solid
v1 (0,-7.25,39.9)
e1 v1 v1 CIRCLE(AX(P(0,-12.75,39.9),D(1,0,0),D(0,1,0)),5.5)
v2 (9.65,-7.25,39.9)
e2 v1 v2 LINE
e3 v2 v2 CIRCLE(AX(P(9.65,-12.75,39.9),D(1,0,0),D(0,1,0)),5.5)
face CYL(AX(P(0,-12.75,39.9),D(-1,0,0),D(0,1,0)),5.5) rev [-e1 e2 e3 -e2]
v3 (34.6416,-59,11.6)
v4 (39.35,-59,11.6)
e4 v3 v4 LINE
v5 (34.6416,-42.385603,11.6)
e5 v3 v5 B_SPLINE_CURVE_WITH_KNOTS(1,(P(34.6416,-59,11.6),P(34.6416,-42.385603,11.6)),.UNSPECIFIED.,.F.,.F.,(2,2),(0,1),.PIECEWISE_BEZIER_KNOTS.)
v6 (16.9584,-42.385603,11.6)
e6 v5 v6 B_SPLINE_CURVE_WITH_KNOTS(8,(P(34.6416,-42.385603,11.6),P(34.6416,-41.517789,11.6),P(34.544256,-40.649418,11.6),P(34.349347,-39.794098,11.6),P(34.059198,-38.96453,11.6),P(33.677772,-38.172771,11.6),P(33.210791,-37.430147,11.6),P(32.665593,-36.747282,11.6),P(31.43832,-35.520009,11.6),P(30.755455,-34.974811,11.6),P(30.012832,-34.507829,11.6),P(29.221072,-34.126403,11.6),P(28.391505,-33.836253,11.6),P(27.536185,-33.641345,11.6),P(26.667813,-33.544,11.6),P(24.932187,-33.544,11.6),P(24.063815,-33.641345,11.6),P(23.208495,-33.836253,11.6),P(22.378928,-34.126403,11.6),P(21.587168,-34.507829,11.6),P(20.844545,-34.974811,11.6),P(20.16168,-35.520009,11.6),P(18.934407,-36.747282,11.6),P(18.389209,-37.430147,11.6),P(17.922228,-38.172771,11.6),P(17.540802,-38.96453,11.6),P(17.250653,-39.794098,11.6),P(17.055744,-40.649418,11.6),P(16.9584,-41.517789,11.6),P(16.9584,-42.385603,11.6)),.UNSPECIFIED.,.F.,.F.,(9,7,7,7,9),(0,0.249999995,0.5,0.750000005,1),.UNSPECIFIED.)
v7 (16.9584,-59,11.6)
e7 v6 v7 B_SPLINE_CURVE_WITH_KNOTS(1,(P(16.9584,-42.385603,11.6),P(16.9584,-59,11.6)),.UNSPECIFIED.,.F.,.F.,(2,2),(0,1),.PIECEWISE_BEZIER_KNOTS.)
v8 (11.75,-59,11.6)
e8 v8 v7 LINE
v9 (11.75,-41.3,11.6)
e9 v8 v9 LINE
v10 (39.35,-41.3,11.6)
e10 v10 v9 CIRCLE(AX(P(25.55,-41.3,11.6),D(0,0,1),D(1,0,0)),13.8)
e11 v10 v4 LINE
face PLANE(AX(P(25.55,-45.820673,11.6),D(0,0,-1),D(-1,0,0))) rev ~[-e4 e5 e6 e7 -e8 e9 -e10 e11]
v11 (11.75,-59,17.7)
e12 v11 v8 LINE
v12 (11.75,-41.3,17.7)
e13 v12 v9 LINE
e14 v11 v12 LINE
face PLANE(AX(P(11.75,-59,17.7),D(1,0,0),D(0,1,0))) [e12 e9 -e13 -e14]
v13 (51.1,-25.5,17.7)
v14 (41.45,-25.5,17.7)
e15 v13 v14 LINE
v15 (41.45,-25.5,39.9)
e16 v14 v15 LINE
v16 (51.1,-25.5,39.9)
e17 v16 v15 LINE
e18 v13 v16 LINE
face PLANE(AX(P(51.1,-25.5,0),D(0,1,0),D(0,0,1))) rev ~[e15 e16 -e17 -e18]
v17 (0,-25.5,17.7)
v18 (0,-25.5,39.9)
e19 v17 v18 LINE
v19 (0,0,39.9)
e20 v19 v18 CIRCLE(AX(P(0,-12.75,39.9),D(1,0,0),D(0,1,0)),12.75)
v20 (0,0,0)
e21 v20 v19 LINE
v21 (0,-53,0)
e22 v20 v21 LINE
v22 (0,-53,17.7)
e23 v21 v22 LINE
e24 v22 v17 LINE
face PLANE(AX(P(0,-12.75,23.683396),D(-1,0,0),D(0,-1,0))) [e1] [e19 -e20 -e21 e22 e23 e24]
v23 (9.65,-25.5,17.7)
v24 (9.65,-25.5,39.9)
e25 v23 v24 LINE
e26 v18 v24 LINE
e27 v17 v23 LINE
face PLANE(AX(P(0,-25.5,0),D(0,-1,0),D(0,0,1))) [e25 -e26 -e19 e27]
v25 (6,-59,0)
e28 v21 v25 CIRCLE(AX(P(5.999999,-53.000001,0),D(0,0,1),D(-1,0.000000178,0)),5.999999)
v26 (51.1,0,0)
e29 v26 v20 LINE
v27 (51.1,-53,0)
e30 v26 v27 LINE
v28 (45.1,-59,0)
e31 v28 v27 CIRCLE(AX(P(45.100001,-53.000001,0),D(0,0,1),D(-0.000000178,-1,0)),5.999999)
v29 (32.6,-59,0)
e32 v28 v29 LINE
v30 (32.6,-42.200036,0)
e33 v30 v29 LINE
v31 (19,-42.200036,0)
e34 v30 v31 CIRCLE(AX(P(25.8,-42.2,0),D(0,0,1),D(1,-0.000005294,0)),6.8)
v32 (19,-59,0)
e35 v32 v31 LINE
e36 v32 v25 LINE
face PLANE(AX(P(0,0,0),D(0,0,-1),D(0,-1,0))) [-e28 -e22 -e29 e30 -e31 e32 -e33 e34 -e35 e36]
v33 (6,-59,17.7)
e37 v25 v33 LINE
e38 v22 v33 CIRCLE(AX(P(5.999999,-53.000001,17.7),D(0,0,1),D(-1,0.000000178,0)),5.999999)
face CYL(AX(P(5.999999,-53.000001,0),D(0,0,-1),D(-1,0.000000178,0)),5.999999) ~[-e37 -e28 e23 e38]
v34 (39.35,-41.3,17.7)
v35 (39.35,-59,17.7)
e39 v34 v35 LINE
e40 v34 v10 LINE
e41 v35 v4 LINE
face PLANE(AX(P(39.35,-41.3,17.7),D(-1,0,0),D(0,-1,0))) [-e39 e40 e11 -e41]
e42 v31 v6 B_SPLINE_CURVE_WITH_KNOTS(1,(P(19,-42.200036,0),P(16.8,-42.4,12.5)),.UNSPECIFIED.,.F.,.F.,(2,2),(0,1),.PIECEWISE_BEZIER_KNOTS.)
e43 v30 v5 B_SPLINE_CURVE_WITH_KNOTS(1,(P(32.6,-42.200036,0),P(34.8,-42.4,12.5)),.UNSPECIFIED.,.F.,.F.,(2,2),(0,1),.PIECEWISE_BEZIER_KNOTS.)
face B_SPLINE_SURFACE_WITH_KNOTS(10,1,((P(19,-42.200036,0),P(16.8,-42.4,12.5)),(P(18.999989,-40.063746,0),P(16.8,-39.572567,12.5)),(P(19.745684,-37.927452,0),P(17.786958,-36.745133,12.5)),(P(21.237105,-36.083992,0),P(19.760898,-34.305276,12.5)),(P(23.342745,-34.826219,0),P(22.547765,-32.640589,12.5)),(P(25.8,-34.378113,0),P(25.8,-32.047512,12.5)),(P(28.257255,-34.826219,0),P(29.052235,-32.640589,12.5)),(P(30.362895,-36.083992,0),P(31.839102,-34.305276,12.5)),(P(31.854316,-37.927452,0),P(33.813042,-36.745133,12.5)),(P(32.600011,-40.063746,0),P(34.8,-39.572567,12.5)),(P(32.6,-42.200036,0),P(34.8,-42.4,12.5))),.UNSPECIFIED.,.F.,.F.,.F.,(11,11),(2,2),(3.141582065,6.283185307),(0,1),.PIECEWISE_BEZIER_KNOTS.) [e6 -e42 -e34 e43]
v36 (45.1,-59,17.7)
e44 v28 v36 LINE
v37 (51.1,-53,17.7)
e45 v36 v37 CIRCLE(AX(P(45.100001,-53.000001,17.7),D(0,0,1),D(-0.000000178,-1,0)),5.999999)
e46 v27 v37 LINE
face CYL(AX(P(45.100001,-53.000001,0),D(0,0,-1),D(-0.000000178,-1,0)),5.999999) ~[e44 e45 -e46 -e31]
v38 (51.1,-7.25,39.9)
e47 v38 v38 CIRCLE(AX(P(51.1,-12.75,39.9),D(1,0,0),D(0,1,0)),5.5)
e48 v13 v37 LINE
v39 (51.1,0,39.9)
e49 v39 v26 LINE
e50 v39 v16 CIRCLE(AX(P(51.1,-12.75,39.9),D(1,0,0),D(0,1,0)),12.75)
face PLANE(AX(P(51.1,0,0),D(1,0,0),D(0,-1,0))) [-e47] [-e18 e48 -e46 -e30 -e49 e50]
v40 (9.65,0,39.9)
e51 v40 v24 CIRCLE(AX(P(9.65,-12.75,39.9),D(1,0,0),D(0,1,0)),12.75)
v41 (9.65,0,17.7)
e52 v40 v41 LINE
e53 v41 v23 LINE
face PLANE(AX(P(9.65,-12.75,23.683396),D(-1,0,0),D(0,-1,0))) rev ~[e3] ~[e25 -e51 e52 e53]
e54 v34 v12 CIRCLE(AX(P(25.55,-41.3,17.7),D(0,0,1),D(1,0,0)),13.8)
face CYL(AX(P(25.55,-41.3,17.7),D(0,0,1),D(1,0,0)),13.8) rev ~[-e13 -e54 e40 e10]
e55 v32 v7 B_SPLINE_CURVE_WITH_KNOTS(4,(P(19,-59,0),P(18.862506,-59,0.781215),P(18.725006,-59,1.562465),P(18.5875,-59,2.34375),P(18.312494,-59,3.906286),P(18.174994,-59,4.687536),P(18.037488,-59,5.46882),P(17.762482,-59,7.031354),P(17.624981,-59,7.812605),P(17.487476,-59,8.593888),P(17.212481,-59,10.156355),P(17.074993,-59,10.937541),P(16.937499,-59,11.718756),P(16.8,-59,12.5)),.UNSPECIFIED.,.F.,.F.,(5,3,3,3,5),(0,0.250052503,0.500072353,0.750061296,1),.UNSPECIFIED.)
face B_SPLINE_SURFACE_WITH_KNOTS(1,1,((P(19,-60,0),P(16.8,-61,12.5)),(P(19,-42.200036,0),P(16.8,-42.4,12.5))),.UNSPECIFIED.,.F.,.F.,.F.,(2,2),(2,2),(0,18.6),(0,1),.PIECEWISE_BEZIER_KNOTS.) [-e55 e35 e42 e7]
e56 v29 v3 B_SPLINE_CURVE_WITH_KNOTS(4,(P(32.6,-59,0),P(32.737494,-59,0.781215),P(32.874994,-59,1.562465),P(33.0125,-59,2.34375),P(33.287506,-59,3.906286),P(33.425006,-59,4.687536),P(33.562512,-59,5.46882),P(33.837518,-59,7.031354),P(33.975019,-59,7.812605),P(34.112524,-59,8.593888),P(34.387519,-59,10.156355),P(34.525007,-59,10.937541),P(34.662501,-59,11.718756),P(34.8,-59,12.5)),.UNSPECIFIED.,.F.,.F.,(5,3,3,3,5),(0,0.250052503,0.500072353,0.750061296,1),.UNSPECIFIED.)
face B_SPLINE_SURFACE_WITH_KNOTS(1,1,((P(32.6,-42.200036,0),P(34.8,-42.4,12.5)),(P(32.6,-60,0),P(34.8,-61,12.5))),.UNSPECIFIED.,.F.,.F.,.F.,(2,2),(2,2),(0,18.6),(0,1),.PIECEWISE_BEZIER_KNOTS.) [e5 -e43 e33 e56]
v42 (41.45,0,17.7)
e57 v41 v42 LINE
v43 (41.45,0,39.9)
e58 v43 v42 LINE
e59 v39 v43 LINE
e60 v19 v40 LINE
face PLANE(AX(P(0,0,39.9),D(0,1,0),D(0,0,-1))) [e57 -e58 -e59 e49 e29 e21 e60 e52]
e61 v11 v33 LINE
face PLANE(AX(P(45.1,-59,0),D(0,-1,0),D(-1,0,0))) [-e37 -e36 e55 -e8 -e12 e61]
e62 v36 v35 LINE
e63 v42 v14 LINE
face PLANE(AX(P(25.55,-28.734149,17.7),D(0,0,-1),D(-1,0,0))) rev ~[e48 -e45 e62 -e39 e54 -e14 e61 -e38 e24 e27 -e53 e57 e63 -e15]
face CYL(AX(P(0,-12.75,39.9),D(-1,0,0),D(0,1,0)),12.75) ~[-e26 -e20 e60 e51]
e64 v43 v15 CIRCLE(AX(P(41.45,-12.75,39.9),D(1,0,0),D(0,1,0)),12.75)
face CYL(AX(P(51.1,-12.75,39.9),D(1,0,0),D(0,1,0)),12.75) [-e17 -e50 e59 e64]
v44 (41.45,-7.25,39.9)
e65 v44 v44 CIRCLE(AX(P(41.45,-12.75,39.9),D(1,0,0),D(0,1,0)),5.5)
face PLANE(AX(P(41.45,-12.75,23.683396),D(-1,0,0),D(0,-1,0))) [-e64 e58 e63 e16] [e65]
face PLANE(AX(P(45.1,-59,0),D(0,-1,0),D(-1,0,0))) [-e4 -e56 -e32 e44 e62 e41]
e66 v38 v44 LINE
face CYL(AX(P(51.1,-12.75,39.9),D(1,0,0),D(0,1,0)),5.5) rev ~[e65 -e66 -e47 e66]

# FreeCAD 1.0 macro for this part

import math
import FreeCAD as App
import Part
import Sketcher
from FreeCAD import Vector
Q = App.Units.Quantity

doc = App.newDocument("Part")
body = doc.addObject("PartDesign::Body", "Body")

# Sketch on XY plane
sketch1 = body.newObject("Sketcher::SketchObject", "Sketch")
sketch1.AttachmentSupport = (doc.getObject("XY_Plane"), [""])
sketch1.MapMode = "FlatFace"
sketch1.addGeometry([
    Part.LineSegment(Vector(33, -60, 0), Vector(33, -42, 0)),
    Part.ArcOfCircle(Part.Circle(Vector(26, -42, 0), Vector(0, 0, 1), 7), math.radians(0), math.radians(180)),
    Part.LineSegment(Vector(19, -42, 0), Vector(19, -60, 0)),
    Part.LineSegment(Vector(19, -60, 0), Vector(33, -60, 0)),
], False)
sketch1.addConstraint([
    Sketcher.Constraint("Coincident", 0, 2, 1, 1),
    Sketcher.Constraint("Coincident", 1, 2, 2, 1),
    Sketcher.Constraint("Coincident", 2, 2, 3, 1),
    Sketcher.Constraint("Coincident", 3, 2, 0, 1),
    Sketcher.Constraint("Vertical", 0),
    Sketcher.Constraint("Vertical", 2),
    Sketcher.Constraint("Horizontal", 3),
    Sketcher.Constraint("Horizontal", 0, 2, 1, 2),
    Sketcher.Constraint("Radius", 1, Q("6.8 mm")),
    Sketcher.Constraint("DistanceX", -1, 1, 1, 2, Q("19 mm")),
    Sketcher.Constraint("DistanceY", 2, 2, -1, 1, Q("60 mm")),
    Sketcher.Constraint("DistanceY", 1, 3, -1, 1, Q("42.2 mm")),
    Sketcher.Constraint("DistanceY", 0, 1, 0, 2, Q("17.799964 mm")),
])

# Sketch on XY plane
sketch2 = body.newObject("Sketcher::SketchObject", "Sketch001")
sketch2.AttachmentSupport = (doc.getObject("XY_Plane"), [""])
sketch2.MapMode = "FlatFace"
sketch2.AttachmentOffset = App.Placement(Vector(0, 0, 12.5), App.Rotation())
sketch2.addGeometry([
    Part.LineSegment(Vector(35, -61, 0), Vector(35, -42, 0)),
    Part.ArcOfCircle(Part.Circle(Vector(26, -42, 0), Vector(0, 0, 1), 9), math.radians(0), math.radians(180)),
    Part.LineSegment(Vector(17, -42, 0), Vector(17, -61, 0)),
    Part.LineSegment(Vector(17, -61, 0), Vector(35, -61, 0)),
], False)
sketch2.addConstraint([
    Sketcher.Constraint("Tangent", 0, 2, 1, 1),
    Sketcher.Constraint("Tangent", 1, 2, 2, 1),
    Sketcher.Constraint("Coincident", 2, 2, 3, 1),
    Sketcher.Constraint("Coincident", 3, 2, 0, 1),
    Sketcher.Constraint("Vertical", 0),
    Sketcher.Constraint("Vertical", 2),
    Sketcher.Constraint("Horizontal", 3),
    Sketcher.Constraint("Radius", 1, Q("9 mm")),
    Sketcher.Constraint("DistanceY", 0, 1, 0, 2, Q("18.6 mm")),
    Sketcher.Constraint("DistanceY", 2, 2, -1, 1, Q("61 mm")),
    Sketcher.Constraint("DistanceX", -1, 1, 1, 3, Q("25.8 mm")),
])

additiveloft = body.newObject("PartDesign::AdditiveLoft", "AdditiveLoft")
additiveloft.Profile = sketch1
additiveloft.Sections = [sketch2]
additiveloft.Ruled = True
body2 = doc.addObject("PartDesign::Body", "Body001")

# Sketch on XY plane
sketch3 = body2.newObject("Sketcher::SketchObject", "Sketch002")
sketch3.AttachmentSupport = (doc.getObject("XY_Plane001"), [""])
sketch3.MapMode = "FlatFace"
sketch3.addGeometry([
    Part.LineSegment(Vector(51, 0, 0), Vector(0, 0, 0)),  # 0
    Part.LineSegment(Vector(0, 0, 0), Vector(0, -53, 0)),  # 1
    Part.ArcOfCircle(Part.Circle(Vector(6, -53, 0), Vector(0, 0, 1), 6), math.radians(180), math.radians(270)),  # 2
    Part.LineSegment(Vector(6, -59, 0), Vector(45, -59, 0)),  # 3
    Part.ArcOfCircle(Part.Circle(Vector(45, -53, 0), Vector(0, 0, 1), 6), math.radians(-90), math.radians(0)),  # 4
    Part.LineSegment(Vector(51, -53, 0), Vector(51, 0, 0)),  # 5
], False)
sketch3.addConstraint([
    Sketcher.Constraint("Coincident", 0, 2, 1, 1),
    Sketcher.Constraint("Tangent", 1, 2, 2, 1),
    Sketcher.Constraint("Tangent", 2, 2, 3, 1),
    Sketcher.Constraint("Tangent", 3, 2, 4, 1),
    Sketcher.Constraint("Tangent", 4, 2, 5, 1),
    Sketcher.Constraint("Coincident", 5, 2, 0, 1),
    Sketcher.Constraint("Horizontal", 0),
    Sketcher.Constraint("Vertical", 1),
    Sketcher.Constraint("Horizontal", 3),
    Sketcher.Constraint("Vertical", 5),
    Sketcher.Constraint("Coincident", 0, 2, -1, 1),
    Sketcher.Constraint("Equal", 2, 4),
    Sketcher.Constraint("Radius", 2, Q("5.999999 mm")),
    Sketcher.Constraint("DistanceY", 1, 2, 1, 1, Q("53 mm")),
    Sketcher.Constraint("DistanceX", 0, 2, 0, 1, Q("51.1 mm")),
])
pad1 = body2.newObject("PartDesign::Pad", "Pad")
pad1.Profile = sketch3
pad1.Length = 17.7

# Sketch on XY plane
sketch4 = body2.newObject("Sketcher::SketchObject", "Sketch003")
sketch4.AttachmentSupport = (doc.getObject("XY_Plane001"), [""])
sketch4.MapMode = "FlatFace"
sketch4.AttachmentOffset = App.Placement(Vector(0, 0, 17.7), App.Rotation())
sketch4.addGeometry([
    Part.LineSegment(Vector(39, -59, 0), Vector(39, -41, 0)),
    Part.ArcOfCircle(Part.Circle(Vector(26, -41, 0), Vector(0, 0, 1), 14), math.radians(0), math.radians(180)),
    Part.LineSegment(Vector(12, -41, 0), Vector(12, -59, 0)),
    Part.LineSegment(Vector(12, -59, 0), Vector(39, -59, 0)),
], False)
sketch4.addConstraint([
    Sketcher.Constraint("Tangent", 0, 2, 1, 1),
    Sketcher.Constraint("Tangent", 1, 2, 2, 1),
    Sketcher.Constraint("Coincident", 2, 2, 3, 1),
    Sketcher.Constraint("Coincident", 3, 2, 0, 1),
    Sketcher.Constraint("Vertical", 0),
    Sketcher.Constraint("Vertical", 2),
    Sketcher.Constraint("Horizontal", 3),
    Sketcher.Constraint("Radius", 1, Q("13.8 mm")),
    Sketcher.Constraint("DistanceY", 0, 1, 0, 2, Q("17.7 mm")),
    Sketcher.Constraint("DistanceY", 2, 2, -1, 1, Q("59 mm")),
    Sketcher.Constraint("DistanceX", -1, 1, 1, 3, Q("25.55 mm")),
])
pocket1 = body2.newObject("PartDesign::Pocket", "Pocket")
pocket1.Profile = sketch4
pocket1.Length = 6.1
doc.recompute()

boolean = body2.newObject("PartDesign::Boolean", "Boolean")
boolean.Type = "Cut"
boolean.addObjects([body])
body3 = doc.addObject("PartDesign::Body", "Body002")

# Sketch on YZ plane
sketch5 = body3.newObject("Sketcher::SketchObject", "Sketch004")
sketch5.AttachmentSupport = (doc.getObject("YZ_Plane002"), [""])
sketch5.MapMode = "FlatFace"
sketch5.addGeometry([
    Part.LineSegment(Vector(0, 0, 0), Vector(0, 40, 0)),  # 0
    Part.ArcOfCircle(Part.Circle(Vector(-13, 40, 0), Vector(0, 0, 1), 13), math.radians(0), math.radians(180)),  # 1
    Part.LineSegment(Vector(-26, 40, 0), Vector(-26, 0, 0)),  # 2
    Part.LineSegment(Vector(-26, 0, 0), Vector(0, 0, 0)),  # 3
    Part.Circle(Vector(-13, 40, 0), Vector(0, 0, 1), 6),  # 4
], False)
sketch5.addConstraint([
    Sketcher.Constraint("Tangent", 0, 2, 1, 1),
    Sketcher.Constraint("Tangent", 1, 2, 2, 1),
    Sketcher.Constraint("Coincident", 2, 2, 3, 1),
    Sketcher.Constraint("Coincident", 3, 2, 0, 1),
    Sketcher.Constraint("Vertical", 0),
    Sketcher.Constraint("Vertical", 2),
    Sketcher.Constraint("Horizontal", 3),
    Sketcher.Constraint("Coincident", 3, 2, -1, 1),
    Sketcher.Constraint("Coincident", 4, 3, 1, 3),
    Sketcher.Constraint("Diameter", 4, Q("11 mm")),
    Sketcher.Constraint("Radius", 1, Q("12.75 mm")),
    Sketcher.Constraint("DistanceY", 0, 1, 0, 2, Q("39.9 mm")),
])
pad2 = body3.newObject("PartDesign::Pad", "Pad001")
pad2.Profile = sketch5
pad2.Length = 9.65
body4 = doc.addObject("PartDesign::Body", "Body003")
body4.AllowCompound = True

# Sketch on YZ plane
sketch6 = body4.newObject("Sketcher::SketchObject", "Sketch005")
sketch6.AttachmentSupport = (doc.getObject("YZ_Plane003"), [""])
sketch6.MapMode = "FlatFace"
sketch6.AttachmentOffset = App.Placement(Vector(0, 0, 51.1), App.Rotation())
sketch6.addGeometry([
    Part.LineSegment(Vector(0, 0, 0), Vector(0, 40, 0)),  # 0
    Part.ArcOfCircle(Part.Circle(Vector(-13, 40, 0), Vector(0, 0, 1), 13), math.radians(0), math.radians(180)),  # 1
    Part.LineSegment(Vector(-26, 40, 0), Vector(-26, 0, 0)),  # 2
    Part.LineSegment(Vector(-26, 0, 0), Vector(0, 0, 0)),  # 3
    Part.Circle(Vector(-13, 40, 0), Vector(0, 0, 1), 6),  # 4
], False)
sketch6.addConstraint([
    Sketcher.Constraint("Tangent", 0, 2, 1, 1),
    Sketcher.Constraint("Tangent", 1, 2, 2, 1),
    Sketcher.Constraint("Coincident", 2, 2, 3, 1),
    Sketcher.Constraint("Coincident", 3, 2, 0, 1),
    Sketcher.Constraint("Vertical", 0),
    Sketcher.Constraint("Vertical", 2),
    Sketcher.Constraint("Horizontal", 3),
    Sketcher.Constraint("Coincident", 3, 2, -1, 1),
    Sketcher.Constraint("Coincident", 4, 3, 1, 3),
    Sketcher.Constraint("Diameter", 4, Q("11 mm")),
    Sketcher.Constraint("Radius", 1, Q("12.75 mm")),
    Sketcher.Constraint("DistanceY", 0, 1, 0, 2, Q("39.9 mm")),
])
pad3 = body4.newObject("PartDesign::Pad", "Pad002")
pad3.Profile = sketch6
pad3.Length = 9.65
pad3.Reversed = True
doc.recompute()

boolean2 = body4.newObject("PartDesign::Boolean", "Boolean001")
boolean2.Type = "Fuse"
boolean2.addObjects([body3])
doc.recompute()

boolean3 = body4.newObject("PartDesign::Boolean", "Boolean002")
boolean3.Type = "Fuse"
boolean3.addObjects([body2])

doc.recompute()
